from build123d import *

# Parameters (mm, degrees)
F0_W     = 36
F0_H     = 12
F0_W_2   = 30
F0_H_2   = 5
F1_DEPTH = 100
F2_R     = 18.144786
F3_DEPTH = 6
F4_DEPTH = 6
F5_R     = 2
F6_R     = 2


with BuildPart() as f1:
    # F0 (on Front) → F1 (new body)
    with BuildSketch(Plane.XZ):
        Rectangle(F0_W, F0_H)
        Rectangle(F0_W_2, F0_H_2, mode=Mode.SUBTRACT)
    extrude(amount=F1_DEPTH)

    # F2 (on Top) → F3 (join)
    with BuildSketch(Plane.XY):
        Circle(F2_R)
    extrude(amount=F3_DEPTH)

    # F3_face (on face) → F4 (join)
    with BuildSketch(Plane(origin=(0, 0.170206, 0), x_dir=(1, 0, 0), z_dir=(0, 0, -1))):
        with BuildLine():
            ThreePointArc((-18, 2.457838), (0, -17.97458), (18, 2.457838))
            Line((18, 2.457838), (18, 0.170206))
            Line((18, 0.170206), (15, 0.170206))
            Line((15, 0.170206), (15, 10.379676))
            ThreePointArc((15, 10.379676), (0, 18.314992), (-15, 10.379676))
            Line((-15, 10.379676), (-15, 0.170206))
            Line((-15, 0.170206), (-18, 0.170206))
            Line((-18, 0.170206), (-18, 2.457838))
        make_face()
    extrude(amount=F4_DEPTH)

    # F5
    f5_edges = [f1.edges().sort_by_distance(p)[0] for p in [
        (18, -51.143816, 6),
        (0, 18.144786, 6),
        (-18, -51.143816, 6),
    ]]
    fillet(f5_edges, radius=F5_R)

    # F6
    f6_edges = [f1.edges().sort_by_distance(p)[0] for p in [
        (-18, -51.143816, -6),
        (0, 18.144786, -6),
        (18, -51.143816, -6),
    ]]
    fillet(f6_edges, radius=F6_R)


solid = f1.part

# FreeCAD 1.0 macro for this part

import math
import FreeCAD as App
import Part
import Sketcher
from FreeCAD import Vector


def edges_at(feature, points):
    """Names of the edges that pass closest to the given points."""
    edges = feature.Shape.Edges
    near = lambda p: min(range(len(edges)), key=lambda i: edges[i].distToShape(Part.Vertex(*p))[0])
    return sorted({f"Edge{near(p) + 1}" for p in points})


def add_polygon(sketch, points):
    """Adds a closed chain of lines whose ends are joined by coincident constraints."""
    first, n = sketch.GeometryCount, len(points)
    for a, b in zip(points, points[1:] + points[:1]):
        sketch.addGeometry(Part.LineSegment(App.Vector(*a, 0), App.Vector(*b, 0)), False)
    for i in range(n):
        sketch.addConstraint(Sketcher.Constraint("Coincident", first + i, 2, first + (i + 1) % n, 1))

doc = App.newDocument("Part")
body = doc.addObject("PartDesign::Body", "Body")

# Sketch on XZ plane
sketch1 = doc.addObject("Sketcher::SketchObject", "Sketch")
body.addObject(sketch1)
sketch1.AttachmentSupport = (doc.XZ_Plane, [""])
sketch1.MapMode = "FlatFace"
add_polygon(sketch1, [(-18, 6), (-18, -6), (18, -6), (18, 6)])  # lines 0-3
add_polygon(sketch1, [(15, -2), (-15, -2), (-15, 2), (15, 2)])  # lines 4-7
sketch1.addConstraint(Sketcher.Constraint("Vertical", 0))
sketch1.addConstraint(Sketcher.Constraint("Horizontal", 1))
sketch1.addConstraint(Sketcher.Constraint("Vertical", 2))
sketch1.addConstraint(Sketcher.Constraint("Horizontal", 3))
sketch1.addConstraint(Sketcher.Constraint("Horizontal", 4))
sketch1.addConstraint(Sketcher.Constraint("Vertical", 5))
sketch1.addConstraint(Sketcher.Constraint("Horizontal", 6))
sketch1.addConstraint(Sketcher.Constraint("Vertical", 7))
sketch1.addConstraint(Sketcher.Constraint("Symmetric", 0, 2, 2, 2, -1, 1))
sketch1.addConstraint(Sketcher.Constraint("Symmetric", 4, 2, 6, 2, -1, 1))
sketch1.addConstraint(Sketcher.Constraint("DistanceX", 1, 1, 1, 2, 36.0))
sketch1.addConstraint(Sketcher.Constraint("DistanceX", 4, 2, 4, 1, 30.0))
sketch1.addConstraint(Sketcher.Constraint("DistanceY", 0, 2, 0, 1, 12.0))
sketch1.addConstraint(Sketcher.Constraint("DistanceY", 5, 1, 5, 2, 5.0))
pad1 = doc.addObject("PartDesign::Pad", "Pad")
body.addObject(pad1)
pad1.Profile = sketch1
pad1.Length = 100

# Sketch on XY plane
sketch2 = doc.addObject("Sketcher::SketchObject", "Sketch001")
body.addObject(sketch2)
sketch2.AttachmentSupport = (doc.XY_Plane, [""])
sketch2.MapMode = "FlatFace"
sketch2.addGeometry(Part.Circle(Vector(0, 0, 0), Vector(0, 0, 1), 18), False)
sketch2.addConstraint(Sketcher.Constraint("Coincident", 0, 3, -1, 1))
sketch2.addConstraint(Sketcher.Constraint("Diameter", 0, 36.289572))
pad2 = doc.addObject("PartDesign::Pad", "Pad001")
body.addObject(pad2)
pad2.Profile = sketch2
pad2.Length = 6

# Sketch on XY plane
sketch3 = doc.addObject("Sketcher::SketchObject", "Sketch002")
body.addObject(sketch3)
sketch3.AttachmentSupport = (doc.XY_Plane, [""])
sketch3.MapMode = "FlatFace"
sketch3.addGeometry(Part.ArcOfCircle(Part.Circle(Vector(0, 0, 0), Vector(0, 0, 1), 18.1), math.radians(-7), math.radians(187)), False)
sketch3.addGeometry(Part.LineSegment(Vector(18, -2.3, 0), Vector(18, 0, 0)), False)
sketch3.addGeometry(Part.LineSegment(Vector(18, 0, 0), Vector(15, 0, 0)), False)
sketch3.addGeometry(Part.LineSegment(Vector(15, 0, 0), Vector(15, -10.2, 0)), False)
sketch3.addGeometry(Part.ArcOfCircle(Part.Circle(Vector(0, 0, 0), Vector(0, 0, 1), 18.1), math.radians(-146), math.radians(-34)), False)
sketch3.addGeometry(Part.LineSegment(Vector(-15, -10.2, 0), Vector(-15, 0, 0)), False)
sketch3.addGeometry(Part.LineSegment(Vector(-15, 0, 0), Vector(-18, 0, 0)), False)
sketch3.addGeometry(Part.LineSegment(Vector(-18, 0, 0), Vector(-18, -2.3, 0)), False)
sketch3.addConstraint(Sketcher.Constraint("Coincident", 0, 1, 1, 1))
sketch3.addConstraint(Sketcher.Constraint("Coincident", 1, 2, 2, 1))
sketch3.addConstraint(Sketcher.Constraint("Coincident", 2, 2, 3, 1))
sketch3.addConstraint(Sketcher.Constraint("Coincident", 3, 2, 4, 2))
sketch3.addConstraint(Sketcher.Constraint("Coincident", 4, 1, 5, 1))
sketch3.addConstraint(Sketcher.Constraint("Coincident", 5, 2, 6, 1))
sketch3.addConstraint(Sketcher.Constraint("Coincident", 6, 2, 7, 1))
sketch3.addConstraint(Sketcher.Constraint("Coincident", 7, 2, 0, 2))
sketch3.addConstraint(Sketcher.Constraint("Vertical", 1))
sketch3.addConstraint(Sketcher.Constraint("Horizontal", 2))
sketch3.addConstraint(Sketcher.Constraint("Vertical", 3))
sketch3.addConstraint(Sketcher.Constraint("Vertical", 5))
sketch3.addConstraint(Sketcher.Constraint("Horizontal", 6))
sketch3.addConstraint(Sketcher.Constraint("Vertical", 7))
sketch3.addConstraint(Sketcher.Constraint("Coincident", 0, 3, -1, 1))
sketch3.addConstraint(Sketcher.Constraint("Coincident", 4, 3, -1, 1))
sketch3.addConstraint(Sketcher.Constraint("Equal", 0, 4))
sketch3.addConstraint(Sketcher.Constraint("Symmetric", 2, 2, 5, 2, -1, 1))
sketch3.addConstraint(Sketcher.Constraint("Symmetric", 1, 2, 6, 2, -2))
sketch3.addConstraint(Sketcher.Constraint("DistanceX", 2, 2, 2, 1, 3.0))
sketch3.addConstraint(Sketcher.Constraint("DistanceX", -1, 1, 0, 1, 18.0))
sketch3.addConstraint(Sketcher.Constraint("Radius", 0, 18.144786))
pad3 = doc.addObject("PartDesign::Pad", "Pad002")
body.addObject(pad3)
pad3.Profile = sketch3
pad3.Length = 6
pad3.Reversed = True
doc.recompute()

fillet = doc.addObject("PartDesign::Fillet", "Fillet")
body.addObject(fillet)
fillet.Base = (pad3, edges_at(pad3, [(18, -51.144, 6), (0, 18.145, 6), (-18, -51.144, 6)]))
fillet.Radius = 2
doc.recompute()

fillet2 = doc.addObject("PartDesign::Fillet", "Fillet001")
body.addObject(fillet2)
fillet2.Base = (fillet, edges_at(fillet, [(-18, -51.144, -6), (0, 18.145, -6), (18, -51.144, -6)]))
fillet2.Radius = 2

doc.recompute()
